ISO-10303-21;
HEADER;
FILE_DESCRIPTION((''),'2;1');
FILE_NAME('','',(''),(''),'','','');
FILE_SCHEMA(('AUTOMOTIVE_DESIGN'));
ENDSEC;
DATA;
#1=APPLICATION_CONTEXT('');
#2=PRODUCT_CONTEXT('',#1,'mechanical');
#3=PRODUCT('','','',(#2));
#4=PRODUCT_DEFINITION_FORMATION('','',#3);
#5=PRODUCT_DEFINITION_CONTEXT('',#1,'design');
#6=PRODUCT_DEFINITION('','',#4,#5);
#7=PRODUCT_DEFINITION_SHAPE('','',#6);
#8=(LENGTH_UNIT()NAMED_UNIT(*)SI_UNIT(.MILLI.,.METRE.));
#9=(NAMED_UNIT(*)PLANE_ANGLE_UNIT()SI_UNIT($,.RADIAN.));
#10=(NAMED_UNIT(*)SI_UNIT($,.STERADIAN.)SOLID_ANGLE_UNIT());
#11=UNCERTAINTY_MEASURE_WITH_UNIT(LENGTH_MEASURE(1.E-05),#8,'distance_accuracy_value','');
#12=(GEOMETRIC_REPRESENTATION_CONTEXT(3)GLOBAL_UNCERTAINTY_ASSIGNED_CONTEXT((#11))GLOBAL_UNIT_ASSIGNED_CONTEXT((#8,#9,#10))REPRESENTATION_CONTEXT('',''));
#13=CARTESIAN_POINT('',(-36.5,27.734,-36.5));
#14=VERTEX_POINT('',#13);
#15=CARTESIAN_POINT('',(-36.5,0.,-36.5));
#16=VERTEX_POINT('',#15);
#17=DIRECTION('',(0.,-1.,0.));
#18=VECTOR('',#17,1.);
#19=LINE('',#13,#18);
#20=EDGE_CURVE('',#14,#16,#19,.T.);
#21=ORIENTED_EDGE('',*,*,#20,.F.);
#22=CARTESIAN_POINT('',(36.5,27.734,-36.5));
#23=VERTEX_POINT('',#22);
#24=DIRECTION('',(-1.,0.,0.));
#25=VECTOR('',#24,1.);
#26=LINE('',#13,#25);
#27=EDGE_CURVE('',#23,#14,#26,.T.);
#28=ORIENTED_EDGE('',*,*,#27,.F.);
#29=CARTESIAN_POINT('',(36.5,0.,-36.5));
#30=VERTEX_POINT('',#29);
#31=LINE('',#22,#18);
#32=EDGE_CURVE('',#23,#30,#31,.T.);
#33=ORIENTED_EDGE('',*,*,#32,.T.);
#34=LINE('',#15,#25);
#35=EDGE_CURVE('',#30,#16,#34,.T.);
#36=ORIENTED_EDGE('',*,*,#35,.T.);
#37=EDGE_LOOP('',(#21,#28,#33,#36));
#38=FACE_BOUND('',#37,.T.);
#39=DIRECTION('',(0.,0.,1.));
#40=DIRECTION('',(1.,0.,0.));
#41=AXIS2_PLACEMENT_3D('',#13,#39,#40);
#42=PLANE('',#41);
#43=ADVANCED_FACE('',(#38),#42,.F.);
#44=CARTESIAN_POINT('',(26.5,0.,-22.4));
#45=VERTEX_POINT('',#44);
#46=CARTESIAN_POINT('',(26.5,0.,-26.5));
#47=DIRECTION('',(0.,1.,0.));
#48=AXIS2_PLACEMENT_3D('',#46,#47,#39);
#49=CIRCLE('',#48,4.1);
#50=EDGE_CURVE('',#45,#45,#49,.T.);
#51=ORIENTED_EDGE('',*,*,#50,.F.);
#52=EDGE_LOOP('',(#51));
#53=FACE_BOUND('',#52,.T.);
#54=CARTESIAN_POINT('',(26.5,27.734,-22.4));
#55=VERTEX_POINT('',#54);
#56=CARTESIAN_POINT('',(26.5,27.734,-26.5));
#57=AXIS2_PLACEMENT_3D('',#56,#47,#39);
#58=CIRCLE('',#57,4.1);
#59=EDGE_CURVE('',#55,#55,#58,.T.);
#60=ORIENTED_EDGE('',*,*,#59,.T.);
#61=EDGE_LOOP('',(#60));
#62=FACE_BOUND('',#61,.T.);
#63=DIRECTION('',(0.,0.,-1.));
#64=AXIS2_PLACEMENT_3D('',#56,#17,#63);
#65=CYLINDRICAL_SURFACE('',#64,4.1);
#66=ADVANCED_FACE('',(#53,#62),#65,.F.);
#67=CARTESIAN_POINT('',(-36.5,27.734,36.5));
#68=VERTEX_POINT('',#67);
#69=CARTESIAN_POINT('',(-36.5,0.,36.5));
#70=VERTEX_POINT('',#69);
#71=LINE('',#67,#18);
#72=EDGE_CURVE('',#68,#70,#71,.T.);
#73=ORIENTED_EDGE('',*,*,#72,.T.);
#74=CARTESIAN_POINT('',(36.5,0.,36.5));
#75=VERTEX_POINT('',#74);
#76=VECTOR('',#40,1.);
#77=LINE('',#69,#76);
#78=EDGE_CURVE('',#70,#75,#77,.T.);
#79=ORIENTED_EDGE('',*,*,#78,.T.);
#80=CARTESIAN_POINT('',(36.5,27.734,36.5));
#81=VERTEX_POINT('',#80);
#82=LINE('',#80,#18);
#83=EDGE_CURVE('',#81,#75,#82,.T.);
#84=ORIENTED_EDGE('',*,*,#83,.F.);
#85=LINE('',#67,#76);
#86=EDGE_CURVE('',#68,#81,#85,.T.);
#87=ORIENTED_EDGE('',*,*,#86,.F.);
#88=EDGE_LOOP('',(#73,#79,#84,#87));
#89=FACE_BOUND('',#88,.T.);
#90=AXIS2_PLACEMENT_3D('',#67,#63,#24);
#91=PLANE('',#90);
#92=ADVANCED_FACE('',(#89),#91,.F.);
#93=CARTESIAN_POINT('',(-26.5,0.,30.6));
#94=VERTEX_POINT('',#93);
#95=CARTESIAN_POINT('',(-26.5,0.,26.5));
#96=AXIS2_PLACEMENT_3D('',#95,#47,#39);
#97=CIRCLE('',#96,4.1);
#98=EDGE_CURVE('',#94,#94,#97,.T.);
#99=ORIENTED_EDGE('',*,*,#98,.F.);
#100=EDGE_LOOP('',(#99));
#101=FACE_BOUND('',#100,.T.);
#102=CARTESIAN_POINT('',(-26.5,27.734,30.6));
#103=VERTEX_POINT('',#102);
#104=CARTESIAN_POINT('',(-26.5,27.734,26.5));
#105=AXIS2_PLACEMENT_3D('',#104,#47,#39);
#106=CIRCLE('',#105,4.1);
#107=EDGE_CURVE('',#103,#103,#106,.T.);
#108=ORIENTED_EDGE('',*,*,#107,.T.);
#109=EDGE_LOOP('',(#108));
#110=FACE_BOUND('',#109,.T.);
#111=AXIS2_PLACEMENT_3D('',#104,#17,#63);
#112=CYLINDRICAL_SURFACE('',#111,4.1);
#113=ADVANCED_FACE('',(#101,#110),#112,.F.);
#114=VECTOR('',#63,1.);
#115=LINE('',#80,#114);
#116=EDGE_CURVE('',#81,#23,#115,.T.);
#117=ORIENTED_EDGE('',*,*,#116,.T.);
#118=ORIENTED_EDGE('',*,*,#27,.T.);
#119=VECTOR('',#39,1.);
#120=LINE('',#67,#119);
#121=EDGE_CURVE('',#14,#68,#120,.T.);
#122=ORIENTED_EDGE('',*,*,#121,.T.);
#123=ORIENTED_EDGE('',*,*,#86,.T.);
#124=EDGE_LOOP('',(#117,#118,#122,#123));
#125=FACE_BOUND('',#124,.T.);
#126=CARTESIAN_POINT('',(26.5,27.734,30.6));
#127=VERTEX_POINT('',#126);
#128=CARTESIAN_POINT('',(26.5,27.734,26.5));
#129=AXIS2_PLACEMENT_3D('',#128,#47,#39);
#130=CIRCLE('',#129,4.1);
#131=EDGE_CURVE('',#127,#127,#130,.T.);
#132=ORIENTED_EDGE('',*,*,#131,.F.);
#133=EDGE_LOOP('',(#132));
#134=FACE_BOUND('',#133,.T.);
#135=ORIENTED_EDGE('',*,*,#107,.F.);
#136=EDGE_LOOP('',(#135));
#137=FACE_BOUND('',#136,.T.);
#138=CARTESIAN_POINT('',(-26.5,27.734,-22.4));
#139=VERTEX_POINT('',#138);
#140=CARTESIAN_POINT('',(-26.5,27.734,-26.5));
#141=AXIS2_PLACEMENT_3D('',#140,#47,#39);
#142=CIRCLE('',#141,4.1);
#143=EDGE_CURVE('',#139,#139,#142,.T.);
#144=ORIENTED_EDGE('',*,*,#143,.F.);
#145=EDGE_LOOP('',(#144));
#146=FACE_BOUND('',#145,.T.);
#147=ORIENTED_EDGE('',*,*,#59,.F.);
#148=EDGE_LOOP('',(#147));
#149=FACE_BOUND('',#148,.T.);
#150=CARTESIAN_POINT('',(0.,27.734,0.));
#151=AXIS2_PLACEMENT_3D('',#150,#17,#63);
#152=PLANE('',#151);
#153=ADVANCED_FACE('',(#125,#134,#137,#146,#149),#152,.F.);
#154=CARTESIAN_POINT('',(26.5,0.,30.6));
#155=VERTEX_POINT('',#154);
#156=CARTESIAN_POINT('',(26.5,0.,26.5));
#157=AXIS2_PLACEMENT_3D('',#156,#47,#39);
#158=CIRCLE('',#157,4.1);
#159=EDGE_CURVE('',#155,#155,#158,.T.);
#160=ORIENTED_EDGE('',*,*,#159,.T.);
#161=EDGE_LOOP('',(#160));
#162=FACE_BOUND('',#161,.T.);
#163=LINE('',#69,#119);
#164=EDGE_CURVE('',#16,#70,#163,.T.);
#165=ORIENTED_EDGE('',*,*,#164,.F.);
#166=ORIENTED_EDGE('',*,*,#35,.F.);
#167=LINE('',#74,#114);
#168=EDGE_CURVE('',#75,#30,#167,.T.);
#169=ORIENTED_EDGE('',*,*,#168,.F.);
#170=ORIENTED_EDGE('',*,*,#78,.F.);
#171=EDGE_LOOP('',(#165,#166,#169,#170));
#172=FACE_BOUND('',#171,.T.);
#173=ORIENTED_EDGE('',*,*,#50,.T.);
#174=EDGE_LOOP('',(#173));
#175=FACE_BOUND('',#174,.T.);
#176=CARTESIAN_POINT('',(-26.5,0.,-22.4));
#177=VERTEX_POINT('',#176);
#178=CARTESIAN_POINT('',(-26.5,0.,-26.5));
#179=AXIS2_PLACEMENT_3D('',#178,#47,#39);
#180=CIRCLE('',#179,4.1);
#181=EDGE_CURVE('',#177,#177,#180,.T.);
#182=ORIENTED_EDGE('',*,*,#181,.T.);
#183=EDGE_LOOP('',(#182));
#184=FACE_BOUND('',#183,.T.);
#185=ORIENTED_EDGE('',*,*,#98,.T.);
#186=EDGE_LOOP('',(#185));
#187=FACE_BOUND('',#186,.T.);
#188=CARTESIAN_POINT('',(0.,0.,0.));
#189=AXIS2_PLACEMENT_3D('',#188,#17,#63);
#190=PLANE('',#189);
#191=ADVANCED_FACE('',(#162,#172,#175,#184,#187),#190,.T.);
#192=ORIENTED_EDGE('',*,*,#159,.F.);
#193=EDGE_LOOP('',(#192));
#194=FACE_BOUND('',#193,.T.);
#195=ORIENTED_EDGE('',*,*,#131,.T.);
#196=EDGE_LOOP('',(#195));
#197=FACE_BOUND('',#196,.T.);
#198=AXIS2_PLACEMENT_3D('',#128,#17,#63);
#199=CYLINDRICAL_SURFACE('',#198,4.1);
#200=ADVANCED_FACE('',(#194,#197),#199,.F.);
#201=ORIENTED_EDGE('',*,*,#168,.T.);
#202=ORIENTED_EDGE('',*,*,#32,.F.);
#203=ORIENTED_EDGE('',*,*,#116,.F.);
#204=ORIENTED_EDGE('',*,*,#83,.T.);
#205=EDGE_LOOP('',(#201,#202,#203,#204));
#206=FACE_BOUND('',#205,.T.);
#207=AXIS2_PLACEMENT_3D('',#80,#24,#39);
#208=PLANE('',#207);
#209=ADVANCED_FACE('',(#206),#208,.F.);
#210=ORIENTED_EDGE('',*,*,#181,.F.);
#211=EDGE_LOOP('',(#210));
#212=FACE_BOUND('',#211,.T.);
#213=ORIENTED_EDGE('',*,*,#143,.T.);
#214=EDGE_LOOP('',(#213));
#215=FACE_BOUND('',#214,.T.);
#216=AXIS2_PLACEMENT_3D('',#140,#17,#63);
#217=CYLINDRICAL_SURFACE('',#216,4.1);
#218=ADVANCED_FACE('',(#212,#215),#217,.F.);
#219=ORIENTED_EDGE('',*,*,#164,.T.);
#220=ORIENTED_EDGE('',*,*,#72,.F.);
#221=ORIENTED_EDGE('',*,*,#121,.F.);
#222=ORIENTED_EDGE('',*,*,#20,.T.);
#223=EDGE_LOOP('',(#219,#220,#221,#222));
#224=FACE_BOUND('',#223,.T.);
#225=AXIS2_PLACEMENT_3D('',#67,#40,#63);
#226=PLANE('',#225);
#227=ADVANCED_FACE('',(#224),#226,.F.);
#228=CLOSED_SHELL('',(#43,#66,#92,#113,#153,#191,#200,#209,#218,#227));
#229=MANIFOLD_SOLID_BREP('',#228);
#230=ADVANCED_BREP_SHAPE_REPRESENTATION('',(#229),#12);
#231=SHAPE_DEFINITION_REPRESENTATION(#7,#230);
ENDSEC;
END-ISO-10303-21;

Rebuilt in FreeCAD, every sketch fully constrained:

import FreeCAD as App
import Part
import Sketcher

V = App.Vector


def add_polygon(sketch, points):
    """Adds a closed chain of lines whose ends are joined by coincident constraints."""
    first, n = sketch.GeometryCount, len(points)
    for a, b in zip(points, points[1:] + points[:1]):
        sketch.addGeometry(Part.LineSegment(App.Vector(*a, 0), App.Vector(*b, 0)), False)
    for i in range(n):
        sketch.addConstraint(Sketcher.Constraint("Coincident", first + i, 2, first + (i + 1) % n, 1))

doc = App.newDocument("Part")
body = doc.addObject("PartDesign::Body", "Body")

# Sketch on XZ plane
sketch1 = doc.addObject("Sketcher::SketchObject", "Sketch")
body.addObject(sketch1)
sketch1.AttachmentSupport = (doc.XZ_Plane, [""])
sketch1.MapMode = "FlatFace"
add_polygon(sketch1, [(-36.5, -36.5), (-36.5, 36.5), (36.5, 36.5), (36.5, -36.5)])  # lines 0-3
sketch1.addGeometry(Part.Circle(V(-26.5, 26.5, 0), V(0, 0, 1), 4.1), False)  # 4
sketch1.addGeometry(Part.Circle(V(26.5, 26.5, 0), V(0, 0, 1), 4.1), False)  # 5
sketch1.addGeometry(Part.Circle(V(-26.5, -26.5, 0), V(0, 0, 1), 4.1), False)  # 6
sketch1.addGeometry(Part.Circle(V(26.5, -26.5, 0), V(0, 0, 1), 4.1), False)  # 7
sketch1.addConstraint(Sketcher.Constraint("Vertical", 0))
sketch1.addConstraint(Sketcher.Constraint("Horizontal", 1))
sketch1.addConstraint(Sketcher.Constraint("Vertical", 2))
sketch1.addConstraint(Sketcher.Constraint("Horizontal", 3))
sketch1.addConstraint(Sketcher.Constraint("Equal", 4, 5))
sketch1.addConstraint(Sketcher.Constraint("Equal", 5, 6))
sketch1.addConstraint(Sketcher.Constraint("Equal", 6, 7))
sketch1.addConstraint(Sketcher.Constraint("Symmetric", 5, 3, 6, 3, -1, 1))
sketch1.addConstraint(Sketcher.Constraint("Symmetric", 4, 3, 7, 3, -1, 1))
sketch1.addConstraint(Sketcher.Constraint("Symmetric", 0, 2, 2, 2, -1, 1))
sketch1.addConstraint(Sketcher.Constraint("Symmetric", 4, 3, 5, 3, -2))
sketch1.addConstraint(Sketcher.Constraint("Equal", 3, 0))
sketch1.addConstraint(Sketcher.Constraint("Diameter", 4, 8.2))
sketch1.addConstraint(Sketcher.Constraint("DistanceX", 1, 1, 1, 2, 73.0))
sketch1.addConstraint(Sketcher.Constraint("DistanceX", 4, 3, 5, 3, 53.0))
sketch1.addConstraint(Sketcher.Constraint("DistanceY", 6, 3, 4, 3, 53.0))
pad1 = doc.addObject("PartDesign::Pad", "Pad")
body.addObject(pad1)
pad1.Profile = sketch1
pad1.Length = 27.734
pad1.Reversed = True

doc.recompute()
